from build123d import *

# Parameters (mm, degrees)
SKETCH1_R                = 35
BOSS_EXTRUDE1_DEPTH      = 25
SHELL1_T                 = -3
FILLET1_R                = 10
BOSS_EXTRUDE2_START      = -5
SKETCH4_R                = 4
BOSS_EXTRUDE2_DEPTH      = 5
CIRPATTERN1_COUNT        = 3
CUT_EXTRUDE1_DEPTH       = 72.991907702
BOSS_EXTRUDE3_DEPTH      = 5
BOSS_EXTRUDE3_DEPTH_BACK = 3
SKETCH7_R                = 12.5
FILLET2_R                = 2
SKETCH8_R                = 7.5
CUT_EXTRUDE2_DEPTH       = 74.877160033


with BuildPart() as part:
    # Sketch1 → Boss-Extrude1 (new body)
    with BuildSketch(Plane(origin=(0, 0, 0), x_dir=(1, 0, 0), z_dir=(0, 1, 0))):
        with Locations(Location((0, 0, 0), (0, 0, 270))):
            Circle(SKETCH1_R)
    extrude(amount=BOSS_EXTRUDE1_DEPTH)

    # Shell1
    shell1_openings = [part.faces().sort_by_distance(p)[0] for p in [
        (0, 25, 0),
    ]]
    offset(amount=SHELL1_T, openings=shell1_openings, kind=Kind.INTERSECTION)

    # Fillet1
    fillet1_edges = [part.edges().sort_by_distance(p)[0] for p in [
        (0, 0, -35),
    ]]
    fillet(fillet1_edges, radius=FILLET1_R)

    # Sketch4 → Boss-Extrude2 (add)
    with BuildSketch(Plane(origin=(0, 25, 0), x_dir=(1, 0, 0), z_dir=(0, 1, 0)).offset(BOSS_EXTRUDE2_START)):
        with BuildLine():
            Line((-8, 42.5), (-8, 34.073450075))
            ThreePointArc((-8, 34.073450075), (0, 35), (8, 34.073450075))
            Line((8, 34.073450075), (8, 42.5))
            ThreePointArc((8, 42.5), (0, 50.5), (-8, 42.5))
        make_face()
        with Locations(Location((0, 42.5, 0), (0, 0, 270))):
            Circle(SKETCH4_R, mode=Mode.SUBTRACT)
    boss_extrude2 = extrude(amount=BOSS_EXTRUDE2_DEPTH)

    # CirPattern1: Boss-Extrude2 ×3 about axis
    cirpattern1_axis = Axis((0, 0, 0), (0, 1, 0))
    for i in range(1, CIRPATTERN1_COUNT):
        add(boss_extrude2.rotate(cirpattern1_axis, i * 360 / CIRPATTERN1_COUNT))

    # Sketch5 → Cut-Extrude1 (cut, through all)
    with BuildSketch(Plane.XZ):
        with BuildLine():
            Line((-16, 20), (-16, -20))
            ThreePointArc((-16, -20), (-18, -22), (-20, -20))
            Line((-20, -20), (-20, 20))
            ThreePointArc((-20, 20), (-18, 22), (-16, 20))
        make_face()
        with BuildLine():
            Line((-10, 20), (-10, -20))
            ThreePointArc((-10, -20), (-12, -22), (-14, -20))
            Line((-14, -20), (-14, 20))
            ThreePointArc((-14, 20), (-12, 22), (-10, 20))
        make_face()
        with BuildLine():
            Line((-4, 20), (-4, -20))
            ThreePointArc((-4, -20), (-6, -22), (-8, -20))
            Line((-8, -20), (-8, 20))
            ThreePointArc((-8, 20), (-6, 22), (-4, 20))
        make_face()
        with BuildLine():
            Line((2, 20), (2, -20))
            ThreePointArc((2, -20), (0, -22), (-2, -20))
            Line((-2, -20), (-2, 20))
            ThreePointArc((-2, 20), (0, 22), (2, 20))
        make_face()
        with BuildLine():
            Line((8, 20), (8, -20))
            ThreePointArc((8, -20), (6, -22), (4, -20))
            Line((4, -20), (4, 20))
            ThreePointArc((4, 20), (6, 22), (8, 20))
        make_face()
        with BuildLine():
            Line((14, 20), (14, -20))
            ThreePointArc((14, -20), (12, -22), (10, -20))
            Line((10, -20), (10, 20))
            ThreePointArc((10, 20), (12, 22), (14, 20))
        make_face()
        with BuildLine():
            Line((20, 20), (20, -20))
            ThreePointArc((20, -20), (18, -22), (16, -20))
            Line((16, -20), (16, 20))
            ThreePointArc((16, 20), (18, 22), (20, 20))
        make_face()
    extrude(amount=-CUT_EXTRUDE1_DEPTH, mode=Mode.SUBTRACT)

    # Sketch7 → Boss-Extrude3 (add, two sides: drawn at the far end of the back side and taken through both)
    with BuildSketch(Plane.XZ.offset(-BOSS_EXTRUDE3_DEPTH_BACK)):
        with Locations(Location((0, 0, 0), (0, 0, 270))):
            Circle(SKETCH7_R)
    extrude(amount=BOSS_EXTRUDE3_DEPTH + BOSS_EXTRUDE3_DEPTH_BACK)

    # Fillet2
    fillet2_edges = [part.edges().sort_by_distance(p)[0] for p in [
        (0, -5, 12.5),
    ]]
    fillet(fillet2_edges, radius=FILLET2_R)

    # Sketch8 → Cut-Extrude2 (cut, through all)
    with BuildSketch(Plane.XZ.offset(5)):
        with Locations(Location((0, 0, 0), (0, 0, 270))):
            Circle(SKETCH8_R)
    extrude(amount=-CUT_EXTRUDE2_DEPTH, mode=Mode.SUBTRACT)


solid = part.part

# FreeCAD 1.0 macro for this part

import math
import FreeCAD as App
import Part
import Sketcher

V = App.Vector


def edges_at(feature, points):
    """Names of the edges that pass closest to the given points."""
    edges = feature.Shape.Edges
    near = lambda p: min(range(len(edges)), key=lambda i: edges[i].distToShape(Part.Vertex(*p))[0])
    return sorted({f"Edge{near(p) + 1}" for p in points})


def faces_at(feature, points):
    """Names of the faces that lie closest to the given points."""
    faces = feature.Shape.Faces
    near = lambda p: min(range(len(faces)), key=lambda i: faces[i].distToShape(Part.Vertex(*p))[0])
    return sorted({f"Face{near(p) + 1}" for p in points})

doc = App.newDocument("Part")
params = doc.addObject("Spreadsheet::Sheet", "Params")
for row, (alias, value) in enumerate([
    ("sketch1_diameter", "70 mm"),
    ("pad1_length", "25 mm"),
    ("thickness_wall", "3 mm"),
    ("fillet_radius", "10 mm"),
    ("sketch2_diameter", "8 mm"),
    ("sketch2_radius", "35 mm"),
    ("sketch2_radius2", "8 mm"),
    ("pad2_length", "5 mm"),
    ("sketch3_radius", "2 mm"),
    ("sketch3_height", "40 mm"),
    ("sketch4_diameter", "25 mm"),
    ("pad3_length", "5 mm"),
    ("pad3_length2", "3 mm"),
    ("fillet2_radius", "2 mm"),
    ("sketch5_diameter", "15 mm"),
], start=1):
    params.set(f"A{row}", alias)
    params.set(f"B{row}", "=" + value)
    params.setAlias(f"B{row}", alias)

body = doc.addObject("PartDesign::Body", "Body")

sketch1 = body.newObject("Sketcher::SketchObject", "Sketch")
sketch1.AttachmentSupport = (doc.getObject("XZ_Plane"), [""])
sketch1.MapMode = "FlatFace"
sketch1.addGeometry(Part.Circle(V(0, 0, 0), V(0, 0, 1), 35), False)
sketch1.addConstraint(Sketcher.Constraint("Coincident", 0, 3, -1, 1))
sketch1.addConstraint(Sketcher.Constraint("Diameter", 0, 70.0))
sketch1.setExpression("Constraints[1]", "Params.sketch1_diameter")
pad1 = body.newObject("PartDesign::Pad", "Pad")
pad1.Profile = sketch1
pad1.setExpression("Length", "Params.pad1_length")
pad1.Reversed = True
doc.recompute()

thickness = body.newObject("PartDesign::Thickness", "Thickness")
thickness.Base = (pad1, faces_at(pad1, [(0, 25, 0)]))
thickness.setExpression("Value", "Params.thickness_wall")
thickness.Reversed = True
thickness.Join = "Intersection"
doc.recompute()

fillet = body.newObject("PartDesign::Fillet", "Fillet")
fillet.Base = (thickness, edges_at(thickness, [(0, 0, -35)]))
fillet.setExpression("Radius", "Params.fillet_radius")

sketch2 = body.newObject("Sketcher::SketchObject", "Sketch001")
sketch2.AttachmentSupport = (doc.getObject("XZ_Plane"), [""])
sketch2.MapMode = "FlatFace"
sketch2.AttachmentOffset = App.Placement(V(0, 0, -20), App.Rotation())
sketch2.addGeometry(Part.LineSegment(V(-8, -42.5, 0), V(-8, -34.1, 0)), False)
sketch2.addGeometry(Part.ArcOfCircle(Part.Circle(V(0, 0, 0), V(0, 0, 1), 35), math.radians(-103), math.radians(-77)), False)
sketch2.addGeometry(Part.LineSegment(V(8, -34.1, 0), V(8, -42.5, 0)), False)
sketch2.addGeometry(Part.ArcOfCircle(Part.Circle(V(0, -42.5, 0), V(0, 0, 1), 8), math.radians(180), math.radians(360)), False)
sketch2.addGeometry(Part.Circle(V(0, -42.5, 0), V(0, 0, 1), 4), False)
sketch2.addConstraint(Sketcher.Constraint("Coincident", 0, 2, 1, 1))
sketch2.addConstraint(Sketcher.Constraint("Coincident", 1, 2, 2, 1))
sketch2.addConstraint(Sketcher.Constraint("Tangent", 2, 2, 3, 2))
sketch2.addConstraint(Sketcher.Constraint("Tangent", 3, 1, 0, 1))
sketch2.addConstraint(Sketcher.Constraint("Vertical", 0))
sketch2.addConstraint(Sketcher.Constraint("Vertical", 2))
sketch2.addConstraint(Sketcher.Constraint("Coincident", 1, 3, -1, 1))
sketch2.addConstraint(Sketcher.Constraint("Coincident", 4, 3, 3, 3))
sketch2.addConstraint(Sketcher.Constraint("PointOnObject", 3, 3, -2))
sketch2.addConstraint(Sketcher.Constraint("Diameter", 4, 8.0))
sketch2.addConstraint(Sketcher.Constraint("Radius", 1, 35.0))
sketch2.addConstraint(Sketcher.Constraint("Radius", 3, 8.0))
sketch2.addConstraint(Sketcher.Constraint("DistanceY", 3, 3, -1, 1, 42.5))
sketch2.setExpression("Constraints[9]", "Params.sketch2_diameter")
sketch2.setExpression("Constraints[10]", "Params.sketch2_radius")
sketch2.setExpression("Constraints[11]", "Params.sketch2_radius2")
pad2 = body.newObject("PartDesign::Pad", "Pad001")
pad2.Profile = sketch2
pad2.setExpression("Length", "Params.pad2_length")
pad2.Reversed = True
doc.recompute()

polarpattern = body.newObject("PartDesign::PolarPattern", "PolarPattern")
polarpattern.Originals = [pad2]
polarpattern.Axis = (doc.getObject("Y_Axis"), [""])
polarpattern.Angle = 360
polarpattern.Occurrences = 3
body.Tip = polarpattern

sketch3 = body.newObject("Sketcher::SketchObject", "Sketch002")
sketch3.AttachmentSupport = (doc.getObject("XZ_Plane"), [""])
sketch3.MapMode = "FlatFace"
sketch3.addGeometry(Part.LineSegment(V(-16, -20, 0), V(-16, 20, 0)), False)
sketch3.addGeometry(Part.ArcOfCircle(Part.Circle(V(-18, 20, 0), V(0, 0, 1), 2), math.radians(0), math.radians(180)), False)
sketch3.addGeometry(Part.LineSegment(V(-20, 20, 0), V(-20, -20, 0)), False)
sketch3.addGeometry(Part.ArcOfCircle(Part.Circle(V(-18, -20, 0), V(0, 0, 1), 2), math.radians(180), math.radians(360)), False)
sketch3.addGeometry(Part.LineSegment(V(-10, -20, 0), V(-10, 20, 0)), False)
sketch3.addGeometry(Part.ArcOfCircle(Part.Circle(V(-12, 20, 0), V(0, 0, 1), 2), math.radians(0), math.radians(180)), False)
sketch3.addGeometry(Part.LineSegment(V(-14, 20, 0), V(-14, -20, 0)), False)
sketch3.addGeometry(Part.ArcOfCircle(Part.Circle(V(-12, -20, 0), V(0, 0, 1), 2), math.radians(180), math.radians(360)), False)
sketch3.addGeometry(Part.LineSegment(V(-4, -20, 0), V(-4, 20, 0)), False)
sketch3.addGeometry(Part.ArcOfCircle(Part.Circle(V(-6, 20, 0), V(0, 0, 1), 2), math.radians(0), math.radians(180)), False)
sketch3.addGeometry(Part.LineSegment(V(-8, 20, 0), V(-8, -20, 0)), False)
sketch3.addGeometry(Part.ArcOfCircle(Part.Circle(V(-6, -20, 0), V(0, 0, 1), 2), math.radians(180), math.radians(360)), False)
sketch3.addGeometry(Part.LineSegment(V(2, -20, 0), V(2, 20, 0)), False)
sketch3.addGeometry(Part.ArcOfCircle(Part.Circle(V(0, 20, 0), V(0, 0, 1), 2), math.radians(0), math.radians(180)), False)
sketch3.addGeometry(Part.LineSegment(V(-2, 20, 0), V(-2, -20, 0)), False)
sketch3.addGeometry(Part.ArcOfCircle(Part.Circle(V(0, -20, 0), V(0, 0, 1), 2), math.radians(180), math.radians(360)), False)
sketch3.addGeometry(Part.LineSegment(V(8, -20, 0), V(8, 20, 0)), False)
sketch3.addGeometry(Part.ArcOfCircle(Part.Circle(V(6, 20, 0), V(0, 0, 1), 2), math.radians(0), math.radians(180)), False)
sketch3.addGeometry(Part.LineSegment(V(4, 20, 0), V(4, -20, 0)), False)
sketch3.addGeometry(Part.ArcOfCircle(Part.Circle(V(6, -20, 0), V(0, 0, 1), 2), math.radians(180), math.radians(360)), False)
sketch3.addGeometry(Part.LineSegment(V(14, -20, 0), V(14, 20, 0)), False)
sketch3.addGeometry(Part.ArcOfCircle(Part.Circle(V(12, 20, 0), V(0, 0, 1), 2), math.radians(0), math.radians(180)), False)
sketch3.addGeometry(Part.LineSegment(V(10, 20, 0), V(10, -20, 0)), False)
sketch3.addGeometry(Part.ArcOfCircle(Part.Circle(V(12, -20, 0), V(0, 0, 1), 2), math.radians(180), math.radians(360)), False)
sketch3.addGeometry(Part.LineSegment(V(20, -20, 0), V(20, 20, 0)), False)
sketch3.addGeometry(Part.ArcOfCircle(Part.Circle(V(18, 20, 0), V(0, 0, 1), 2), math.radians(0), math.radians(180)), False)
sketch3.addGeometry(Part.LineSegment(V(16, 20, 0), V(16, -20, 0)), False)
sketch3.addGeometry(Part.ArcOfCircle(Part.Circle(V(18, -20, 0), V(0, 0, 1), 2), math.radians(180), math.radians(360)), False)
sketch3.addConstraint(Sketcher.Constraint("Tangent", 0, 2, 1, 1))
sketch3.addConstraint(Sketcher.Constraint("Tangent", 1, 2, 2, 1))
sketch3.addConstraint(Sketcher.Constraint("Tangent", 2, 2, 3, 1))
sketch3.addConstraint(Sketcher.Constraint("Tangent", 3, 2, 0, 1))
sketch3.addConstraint(Sketcher.Constraint("Tangent", 4, 2, 5, 1))
sketch3.addConstraint(Sketcher.Constraint("Tangent", 5, 2, 6, 1))
sketch3.addConstraint(Sketcher.Constraint("Tangent", 6, 2, 7, 1))
sketch3.addConstraint(Sketcher.Constraint("Tangent", 7, 2, 4, 1))
sketch3.addConstraint(Sketcher.Constraint("Tangent", 8, 2, 9, 1))
sketch3.addConstraint(Sketcher.Constraint("Tangent", 9, 2, 10, 1))
sketch3.addConstraint(Sketcher.Constraint("Tangent", 10, 2, 11, 1))
sketch3.addConstraint(Sketcher.Constraint("Tangent", 11, 2, 8, 1))
sketch3.addConstraint(Sketcher.Constraint("Tangent", 12, 2, 13, 1))
sketch3.addConstraint(Sketcher.Constraint("Tangent", 13, 2, 14, 1))
sketch3.addConstraint(Sketcher.Constraint("Tangent", 14, 2, 15, 1))
sketch3.addConstraint(Sketcher.Constraint("Tangent", 15, 2, 12, 1))
sketch3.addConstraint(Sketcher.Constraint("Tangent", 16, 2, 17, 1))
sketch3.addConstraint(Sketcher.Constraint("Tangent", 17, 2, 18, 1))
sketch3.addConstraint(Sketcher.Constraint("Tangent", 18, 2, 19, 1))
sketch3.addConstraint(Sketcher.Constraint("Tangent", 19, 2, 16, 1))
sketch3.addConstraint(Sketcher.Constraint("Tangent", 20, 2, 21, 1))
sketch3.addConstraint(Sketcher.Constraint("Tangent", 21, 2, 22, 1))
sketch3.addConstraint(Sketcher.Constraint("Tangent", 22, 2, 23, 1))
sketch3.addConstraint(Sketcher.Constraint("Tangent", 23, 2, 20, 1))
sketch3.addConstraint(Sketcher.Constraint("Tangent", 24, 2, 25, 1))
sketch3.addConstraint(Sketcher.Constraint("Tangent", 25, 2, 26, 1))
sketch3.addConstraint(Sketcher.Constraint("Tangent", 26, 2, 27, 1))
sketch3.addConstraint(Sketcher.Constraint("Tangent", 27, 2, 24, 1))
sketch3.addConstraint(Sketcher.Constraint("Vertical", 0))
sketch3.addConstraint(Sketcher.Constraint("Vertical", 2))
sketch3.addConstraint(Sketcher.Constraint("Vertical", 4))
sketch3.addConstraint(Sketcher.Constraint("Vertical", 6))
sketch3.addConstraint(Sketcher.Constraint("Vertical", 8))
sketch3.addConstraint(Sketcher.Constraint("Vertical", 10))
sketch3.addConstraint(Sketcher.Constraint("Vertical", 12))
sketch3.addConstraint(Sketcher.Constraint("Vertical", 14))
sketch3.addConstraint(Sketcher.Constraint("Vertical", 16))
sketch3.addConstraint(Sketcher.Constraint("Vertical", 18))
sketch3.addConstraint(Sketcher.Constraint("Vertical", 20))
sketch3.addConstraint(Sketcher.Constraint("Vertical", 22))
sketch3.addConstraint(Sketcher.Constraint("Vertical", 24))
sketch3.addConstraint(Sketcher.Constraint("Vertical", 26))
sketch3.addConstraint(Sketcher.Constraint("Equal", 3, 5))
sketch3.addConstraint(Sketcher.Constraint("Equal", 7, 9))
sketch3.addConstraint(Sketcher.Constraint("Equal", 11, 13))
sketch3.addConstraint(Sketcher.Constraint("Equal", 15, 17))
sketch3.addConstraint(Sketcher.Constraint("Equal", 19, 21))
sketch3.addConstraint(Sketcher.Constraint("Equal", 23, 25))
sketch3.addConstraint(Sketcher.Constraint("Symmetric", 13, 3, 15, 3, -1, 1))
sketch3.addConstraint(Sketcher.Constraint("Symmetric", 11, 3, 17, 3, -1, 1))
sketch3.addConstraint(Sketcher.Constraint("Symmetric", 7, 3, 21, 3, -1, 1))
sketch3.addConstraint(Sketcher.Constraint("Symmetric", 3, 3, 25, 3, -1, 1))
sketch3.addConstraint(Sketcher.Constraint("Horizontal", 1, 3, 5, 3))
sketch3.addConstraint(Sketcher.Constraint("Horizontal", 3, 3, 7, 3))
sketch3.addConstraint(Sketcher.Constraint("Horizontal", 5, 3, 9, 3))
sketch3.addConstraint(Sketcher.Constraint("Horizontal", 7, 3, 11, 3))
sketch3.addConstraint(Sketcher.Constraint("Horizontal", 9, 3, 13, 3))
sketch3.addConstraint(Sketcher.Constraint("Horizontal", 11, 3, 15, 3))
sketch3.addConstraint(Sketcher.Constraint("Horizontal", 15, 3, 19, 3))
sketch3.addConstraint(Sketcher.Constraint("Horizontal", 19, 3, 23, 3))
sketch3.addConstraint(Sketcher.Constraint("Horizontal", 23, 3, 27, 3))
sketch3.addConstraint(Sketcher.Constraint("Radius", 1, 2.0))
sketch3.addConstraint(Sketcher.Constraint("DistanceY", 0, 1, 0, 2, 40.0))
sketch3.addConstraint(Sketcher.Constraint("DistanceX", 1, 3, -1, 1, 18.0))
sketch3.addConstraint(Sketcher.Constraint("DistanceX", 5, 3, -1, 1, 12.0))
sketch3.addConstraint(Sketcher.Constraint("DistanceX", 9, 3, -1, 1, 6.0))
sketch3.setExpression("Constraints[61]", "Params.sketch3_radius")
sketch3.setExpression("Constraints[62]", "Params.sketch3_height")
pocket1 = body.newObject("PartDesign::Pocket", "Pocket")
pocket1.Profile = sketch3
pocket1.Type = "ThroughAll"

sketch4 = body.newObject("Sketcher::SketchObject", "Sketch003")
sketch4.AttachmentSupport = (doc.getObject("XZ_Plane"), [""])
sketch4.MapMode = "FlatFace"
sketch4.addGeometry(Part.Circle(V(0, 0, 0), V(0, 0, 1), 12), False)
sketch4.addConstraint(Sketcher.Constraint("Coincident", 0, 3, -1, 1))
sketch4.addConstraint(Sketcher.Constraint("Diameter", 0, 25.0))
sketch4.setExpression("Constraints[1]", "Params.sketch4_diameter")
pad3 = body.newObject("PartDesign::Pad", "Pad002")
pad3.Profile = sketch4
pad3.Type = "TwoLengths"
pad3.setExpression("Length", "Params.pad3_length")
pad3.setExpression("Length2", "Params.pad3_length2")
doc.recompute()

fillet2 = body.newObject("PartDesign::Fillet", "Fillet001")
fillet2.Base = (pad3, edges_at(pad3, [(0, -5, 12.5)]))
fillet2.setExpression("Radius", "Params.fillet2_radius")

sketch5 = body.newObject("Sketcher::SketchObject", "Sketch004")
sketch5.AttachmentSupport = (doc.getObject("XZ_Plane"), [""])
sketch5.MapMode = "FlatFace"
sketch5.AttachmentOffset = App.Placement(V(0, 0, 5), App.Rotation())
sketch5.addGeometry(Part.Circle(V(0, 0, 0), V(0, 0, 1), 8), False)
sketch5.addConstraint(Sketcher.Constraint("Coincident", 0, 3, -1, 1))
sketch5.addConstraint(Sketcher.Constraint("Diameter", 0, 15.0))
sketch5.setExpression("Constraints[1]", "Params.sketch5_diameter")
pocket2 = body.newObject("PartDesign::Pocket", "Pocket001")
pocket2.Profile = sketch5
pocket2.Type = "ThroughAll"

doc.recompute()
